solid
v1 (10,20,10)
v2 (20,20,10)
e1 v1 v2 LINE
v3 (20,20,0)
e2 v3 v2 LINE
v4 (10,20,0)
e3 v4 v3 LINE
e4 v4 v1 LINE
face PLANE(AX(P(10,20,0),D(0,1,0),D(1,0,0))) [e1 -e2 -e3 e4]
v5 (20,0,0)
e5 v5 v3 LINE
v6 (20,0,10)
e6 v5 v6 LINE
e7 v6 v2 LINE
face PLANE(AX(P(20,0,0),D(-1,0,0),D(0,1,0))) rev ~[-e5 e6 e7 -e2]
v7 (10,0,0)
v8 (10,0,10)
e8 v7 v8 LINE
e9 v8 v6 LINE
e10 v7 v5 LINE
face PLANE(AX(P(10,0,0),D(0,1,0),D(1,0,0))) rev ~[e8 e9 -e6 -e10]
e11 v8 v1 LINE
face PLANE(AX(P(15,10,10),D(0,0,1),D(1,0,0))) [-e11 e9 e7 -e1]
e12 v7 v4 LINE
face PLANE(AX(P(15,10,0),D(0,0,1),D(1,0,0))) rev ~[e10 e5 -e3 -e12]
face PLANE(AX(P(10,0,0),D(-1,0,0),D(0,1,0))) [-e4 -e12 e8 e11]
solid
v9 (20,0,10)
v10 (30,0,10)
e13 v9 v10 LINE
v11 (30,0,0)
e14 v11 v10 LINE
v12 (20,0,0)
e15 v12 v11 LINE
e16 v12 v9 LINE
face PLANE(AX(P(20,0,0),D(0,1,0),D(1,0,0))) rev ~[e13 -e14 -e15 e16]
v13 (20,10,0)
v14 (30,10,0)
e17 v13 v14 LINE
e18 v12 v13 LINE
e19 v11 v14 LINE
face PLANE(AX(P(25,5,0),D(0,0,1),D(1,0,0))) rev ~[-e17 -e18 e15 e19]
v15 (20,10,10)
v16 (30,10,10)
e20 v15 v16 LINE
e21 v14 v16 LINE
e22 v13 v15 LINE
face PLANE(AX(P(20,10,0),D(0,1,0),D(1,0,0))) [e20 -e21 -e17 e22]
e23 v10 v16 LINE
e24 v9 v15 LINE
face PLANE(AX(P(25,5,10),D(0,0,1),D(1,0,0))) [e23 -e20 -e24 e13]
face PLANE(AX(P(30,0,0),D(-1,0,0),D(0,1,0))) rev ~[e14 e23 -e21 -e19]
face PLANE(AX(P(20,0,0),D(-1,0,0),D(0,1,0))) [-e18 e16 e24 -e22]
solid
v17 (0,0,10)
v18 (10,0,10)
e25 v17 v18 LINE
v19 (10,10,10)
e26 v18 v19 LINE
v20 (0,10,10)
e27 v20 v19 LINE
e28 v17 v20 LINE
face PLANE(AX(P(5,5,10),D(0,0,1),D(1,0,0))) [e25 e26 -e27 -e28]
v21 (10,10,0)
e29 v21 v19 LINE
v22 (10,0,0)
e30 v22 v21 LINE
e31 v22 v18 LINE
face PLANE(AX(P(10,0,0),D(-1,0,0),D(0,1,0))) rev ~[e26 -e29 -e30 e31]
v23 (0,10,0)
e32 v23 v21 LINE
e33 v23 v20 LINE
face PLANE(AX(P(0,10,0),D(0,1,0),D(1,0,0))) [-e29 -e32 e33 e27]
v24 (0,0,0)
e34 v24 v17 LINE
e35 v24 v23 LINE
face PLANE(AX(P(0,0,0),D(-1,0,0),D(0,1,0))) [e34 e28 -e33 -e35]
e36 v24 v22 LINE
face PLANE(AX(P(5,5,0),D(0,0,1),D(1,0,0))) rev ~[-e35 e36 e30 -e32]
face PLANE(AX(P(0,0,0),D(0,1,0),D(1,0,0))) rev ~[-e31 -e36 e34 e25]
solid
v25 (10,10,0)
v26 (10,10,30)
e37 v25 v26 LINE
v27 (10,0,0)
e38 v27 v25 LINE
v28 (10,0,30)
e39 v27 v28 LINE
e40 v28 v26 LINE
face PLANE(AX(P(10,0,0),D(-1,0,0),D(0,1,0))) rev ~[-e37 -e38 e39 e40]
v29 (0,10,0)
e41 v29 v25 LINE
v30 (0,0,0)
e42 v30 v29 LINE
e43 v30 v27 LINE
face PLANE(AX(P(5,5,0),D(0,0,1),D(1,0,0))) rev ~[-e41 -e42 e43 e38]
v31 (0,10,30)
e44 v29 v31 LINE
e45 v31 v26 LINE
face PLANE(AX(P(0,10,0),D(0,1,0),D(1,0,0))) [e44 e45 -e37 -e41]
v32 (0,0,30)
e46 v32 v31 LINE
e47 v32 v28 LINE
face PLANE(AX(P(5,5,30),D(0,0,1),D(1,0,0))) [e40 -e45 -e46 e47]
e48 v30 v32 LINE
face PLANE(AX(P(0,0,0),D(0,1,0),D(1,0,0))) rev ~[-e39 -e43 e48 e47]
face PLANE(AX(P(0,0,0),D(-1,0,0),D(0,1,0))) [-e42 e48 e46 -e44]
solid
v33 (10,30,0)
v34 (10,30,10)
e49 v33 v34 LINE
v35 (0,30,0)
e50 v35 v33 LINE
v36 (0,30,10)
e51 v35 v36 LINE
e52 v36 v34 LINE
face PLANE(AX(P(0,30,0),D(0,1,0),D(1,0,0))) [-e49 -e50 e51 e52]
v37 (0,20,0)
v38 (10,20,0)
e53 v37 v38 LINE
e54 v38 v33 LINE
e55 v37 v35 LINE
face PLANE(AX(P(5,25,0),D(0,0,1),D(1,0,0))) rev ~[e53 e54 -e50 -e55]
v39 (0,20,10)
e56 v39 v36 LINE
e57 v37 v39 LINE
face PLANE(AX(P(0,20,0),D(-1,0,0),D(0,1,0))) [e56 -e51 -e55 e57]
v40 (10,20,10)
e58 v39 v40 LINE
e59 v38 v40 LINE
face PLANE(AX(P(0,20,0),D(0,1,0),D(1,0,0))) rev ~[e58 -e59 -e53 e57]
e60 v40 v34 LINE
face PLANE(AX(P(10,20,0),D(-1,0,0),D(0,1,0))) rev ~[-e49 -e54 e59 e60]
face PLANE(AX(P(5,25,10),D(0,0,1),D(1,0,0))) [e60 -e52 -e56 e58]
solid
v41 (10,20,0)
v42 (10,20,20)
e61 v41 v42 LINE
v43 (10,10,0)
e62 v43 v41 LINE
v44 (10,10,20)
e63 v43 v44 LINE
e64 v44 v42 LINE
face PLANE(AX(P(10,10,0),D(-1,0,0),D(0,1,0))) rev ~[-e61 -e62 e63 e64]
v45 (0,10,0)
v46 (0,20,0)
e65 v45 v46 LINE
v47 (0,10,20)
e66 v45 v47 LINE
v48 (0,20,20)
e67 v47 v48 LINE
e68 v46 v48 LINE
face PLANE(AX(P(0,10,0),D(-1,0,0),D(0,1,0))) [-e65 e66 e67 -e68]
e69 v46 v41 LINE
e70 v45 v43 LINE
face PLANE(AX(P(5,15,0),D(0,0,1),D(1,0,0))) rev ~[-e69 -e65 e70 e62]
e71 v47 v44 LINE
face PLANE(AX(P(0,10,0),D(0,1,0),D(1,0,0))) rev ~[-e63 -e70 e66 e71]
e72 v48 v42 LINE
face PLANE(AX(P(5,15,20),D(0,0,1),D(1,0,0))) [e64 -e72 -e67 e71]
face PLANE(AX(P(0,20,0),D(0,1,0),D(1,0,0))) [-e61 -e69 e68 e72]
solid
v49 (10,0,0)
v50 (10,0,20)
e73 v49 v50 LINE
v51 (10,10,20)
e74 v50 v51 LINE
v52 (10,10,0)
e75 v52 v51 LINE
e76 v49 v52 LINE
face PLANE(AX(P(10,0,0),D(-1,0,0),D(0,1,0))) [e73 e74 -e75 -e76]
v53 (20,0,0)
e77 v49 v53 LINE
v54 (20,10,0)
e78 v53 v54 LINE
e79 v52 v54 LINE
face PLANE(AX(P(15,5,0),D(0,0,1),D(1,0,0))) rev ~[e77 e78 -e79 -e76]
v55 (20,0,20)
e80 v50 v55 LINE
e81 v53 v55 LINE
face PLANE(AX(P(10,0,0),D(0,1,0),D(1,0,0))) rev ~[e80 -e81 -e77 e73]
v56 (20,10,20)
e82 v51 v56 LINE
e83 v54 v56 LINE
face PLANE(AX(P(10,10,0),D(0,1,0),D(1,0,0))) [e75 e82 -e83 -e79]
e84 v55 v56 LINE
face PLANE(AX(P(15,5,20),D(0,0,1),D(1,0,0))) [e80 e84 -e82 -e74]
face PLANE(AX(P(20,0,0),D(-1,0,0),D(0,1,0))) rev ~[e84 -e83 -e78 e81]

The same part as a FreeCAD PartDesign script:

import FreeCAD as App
import Part
import Sketcher

V = App.Vector
Q = App.Units.Quantity


def add_polygon(sketch, points):
    """Adds a closed chain of lines whose ends are joined by coincident constraints."""
    first, n = sketch.GeometryCount, len(points)
    for a, b in zip(points, points[1:] + points[:1]):
        sketch.addGeometry(Part.LineSegment(App.Vector(*a, 0), App.Vector(*b, 0)), False)
    for i in range(n):
        sketch.addConstraint(Sketcher.Constraint("Coincident", first + i, 2, first + (i + 1) % n, 1))

doc = App.newDocument("Part")
body = doc.addObject("PartDesign::Body", "Body")

# Sketch on XY plane
sketch1 = body.newObject("Sketcher::SketchObject", "Sketch")
sketch1.AttachmentSupport = (doc.getObject("XY_Plane"), [""])
sketch1.MapMode = "FlatFace"
add_polygon(sketch1, [(0, 10), (0, 0), (10, 0), (10, 10)])  # lines 0-3
sketch1.addConstraint([
    Sketcher.Constraint("Vertical", 0),
    Sketcher.Constraint("Horizontal", 1),
    Sketcher.Constraint("Vertical", 2),
    Sketcher.Constraint("Horizontal", 3),
    Sketcher.Constraint("Coincident", 0, 2, -1, 1),
    Sketcher.Constraint("Equal", 3, 0),
    Sketcher.Constraint("DistanceX", 1, 1, 1, 2, Q("10 mm")),
])
pad1 = body.newObject("PartDesign::Pad", "Pad")
pad1.Profile = sketch1
pad1.Length = 30
body2 = doc.addObject("PartDesign::Body", "Body001")

# Sketch on XY plane
sketch2 = body2.newObject("Sketcher::SketchObject", "Sketch001")
sketch2.AttachmentSupport = (doc.getObject("XY_Plane001"), [""])
sketch2.MapMode = "FlatFace"
add_polygon(sketch2, [(0, 20), (0, 10), (10, 10), (10, 20)])  # lines 0-3
sketch2.addConstraint([
    Sketcher.Constraint("Vertical", 0),
    Sketcher.Constraint("Horizontal", 1),
    Sketcher.Constraint("Vertical", 2),
    Sketcher.Constraint("Horizontal", 3),
    Sketcher.Constraint("PointOnObject", 0, 2, -2),
    Sketcher.Constraint("Equal", 3, 0),
    Sketcher.Constraint("DistanceX", 1, 1, 1, 2, Q("10 mm")),
    Sketcher.Constraint("DistanceY", -1, 1, 0, 2, Q("10 mm")),
])
pad2 = body2.newObject("PartDesign::Pad", "Pad001")
pad2.Profile = sketch2
pad2.Length = 20
body3 = doc.addObject("PartDesign::Body", "Body002")

# Sketch on XY plane
sketch3 = body3.newObject("Sketcher::SketchObject", "Sketch002")
sketch3.AttachmentSupport = (doc.getObject("XY_Plane002"), [""])
sketch3.MapMode = "FlatFace"
add_polygon(sketch3, [(10, 20), (10, 0), (20, 0), (20, 20)])  # lines 0-3
sketch3.addConstraint([
    Sketcher.Constraint("Vertical", 0),
    Sketcher.Constraint("Horizontal", 1),
    Sketcher.Constraint("Vertical", 2),
    Sketcher.Constraint("Horizontal", 3),
    Sketcher.Constraint("PointOnObject", 0, 2, -1),
    Sketcher.Constraint("DistanceX", 1, 1, 1, 2, Q("10 mm")),
    Sketcher.Constraint("DistanceY", 0, 2, 0, 1, Q("20 mm")),
    Sketcher.Constraint("DistanceX", -1, 1, 0, 2, Q("10 mm")),
])
pad3 = body3.newObject("PartDesign::Pad", "Pad002")
pad3.Profile = sketch3
pad3.Length = 10
body4 = doc.addObject("PartDesign::Body", "Body003")

# Sketch on XY plane
sketch4 = body4.newObject("Sketcher::SketchObject", "Sketch003")
sketch4.AttachmentSupport = (doc.getObject("XY_Plane003"), [""])
sketch4.MapMode = "FlatFace"
add_polygon(sketch4, [(20, 10), (20, 0), (30, 0), (30, 10)])  # lines 0-3
sketch4.addConstraint([
    Sketcher.Constraint("Vertical", 0),
    Sketcher.Constraint("Horizontal", 1),
    Sketcher.Constraint("Vertical", 2),
    Sketcher.Constraint("Horizontal", 3),
    Sketcher.Constraint("PointOnObject", 0, 2, -1),
    Sketcher.Constraint("Equal", 3, 0),
    Sketcher.Constraint("DistanceX", 1, 1, 1, 2, Q("10 mm")),
    Sketcher.Constraint("DistanceX", -1, 1, 0, 2, Q("20 mm")),
])
pad4 = body4.newObject("PartDesign::Pad", "Pad003")
pad4.Profile = sketch4
pad4.Length = 10
body5 = doc.addObject("PartDesign::Body", "Body004")

# Sketch on XY plane
sketch5 = body5.newObject("Sketcher::SketchObject", "Sketch004")
sketch5.AttachmentSupport = (doc.getObject("XY_Plane004"), [""])
sketch5.MapMode = "FlatFace"
add_polygon(sketch5, [(0, 30), (0, 20), (10, 20), (10, 30)])  # lines 0-3
sketch5.addConstraint([
    Sketcher.Constraint("Vertical", 0),
    Sketcher.Constraint("Horizontal", 1),
    Sketcher.Constraint("Vertical", 2),
    Sketcher.Constraint("Horizontal", 3),
    Sketcher.Constraint("PointOnObject", 0, 2, -2),
    Sketcher.Constraint("Equal", 3, 0),
    Sketcher.Constraint("DistanceX", 1, 1, 1, 2, Q("10 mm")),
    Sketcher.Constraint("DistanceY", -1, 1, 0, 2, Q("20 mm")),
])
pad5 = body5.newObject("PartDesign::Pad", "Pad004")
pad5.Profile = sketch5
pad5.Length = 10
body6 = doc.addObject("PartDesign::Body", "Body005")

# Sketch on XY plane
sketch6 = body6.newObject("Sketcher::SketchObject", "Sketch005")
sketch6.AttachmentSupport = (doc.getObject("XY_Plane005"), [""])
sketch6.MapMode = "FlatFace"
add_polygon(sketch6, [(0, 10), (0, 0), (10, 0), (10, 10)])  # lines 0-3
sketch6.addConstraint([
    Sketcher.Constraint("Vertical", 0),
    Sketcher.Constraint("Horizontal", 1),
    Sketcher.Constraint("Vertical", 2),
    Sketcher.Constraint("Horizontal", 3),
    Sketcher.Constraint("Coincident", 0, 2, -1, 1),
    Sketcher.Constraint("Equal", 3, 0),
    Sketcher.Constraint("DistanceX", 1, 1, 1, 2, Q("10 mm")),
])
pad6 = body6.newObject("PartDesign::Pad", "Pad005")
pad6.Profile = sketch6
pad6.Length = 10
body7 = doc.addObject("PartDesign::Body", "Body006")

# Sketch on XY plane
sketch7 = body7.newObject("Sketcher::SketchObject", "Sketch006")
sketch7.AttachmentSupport = (doc.getObject("XY_Plane006"), [""])
sketch7.MapMode = "FlatFace"
add_polygon(sketch7, [(10, 10), (10, 0), (20, 0), (20, 10)])  # lines 0-3
sketch7.addConstraint([
    Sketcher.Constraint("Vertical", 0),
    Sketcher.Constraint("Horizontal", 1),
    Sketcher.Constraint("Vertical", 2),
    Sketcher.Constraint("Horizontal", 3),
    Sketcher.Constraint("PointOnObject", 0, 2, -1),
    Sketcher.Constraint("Equal", 3, 0),
    Sketcher.Constraint("DistanceX", 1, 1, 1, 2, Q("10 mm")),
    Sketcher.Constraint("DistanceX", -1, 1, 0, 2, Q("10 mm")),
])
pad7 = body7.newObject("PartDesign::Pad", "Pad006")
pad7.Profile = sketch7
pad7.Length = 20

doc.recompute()
